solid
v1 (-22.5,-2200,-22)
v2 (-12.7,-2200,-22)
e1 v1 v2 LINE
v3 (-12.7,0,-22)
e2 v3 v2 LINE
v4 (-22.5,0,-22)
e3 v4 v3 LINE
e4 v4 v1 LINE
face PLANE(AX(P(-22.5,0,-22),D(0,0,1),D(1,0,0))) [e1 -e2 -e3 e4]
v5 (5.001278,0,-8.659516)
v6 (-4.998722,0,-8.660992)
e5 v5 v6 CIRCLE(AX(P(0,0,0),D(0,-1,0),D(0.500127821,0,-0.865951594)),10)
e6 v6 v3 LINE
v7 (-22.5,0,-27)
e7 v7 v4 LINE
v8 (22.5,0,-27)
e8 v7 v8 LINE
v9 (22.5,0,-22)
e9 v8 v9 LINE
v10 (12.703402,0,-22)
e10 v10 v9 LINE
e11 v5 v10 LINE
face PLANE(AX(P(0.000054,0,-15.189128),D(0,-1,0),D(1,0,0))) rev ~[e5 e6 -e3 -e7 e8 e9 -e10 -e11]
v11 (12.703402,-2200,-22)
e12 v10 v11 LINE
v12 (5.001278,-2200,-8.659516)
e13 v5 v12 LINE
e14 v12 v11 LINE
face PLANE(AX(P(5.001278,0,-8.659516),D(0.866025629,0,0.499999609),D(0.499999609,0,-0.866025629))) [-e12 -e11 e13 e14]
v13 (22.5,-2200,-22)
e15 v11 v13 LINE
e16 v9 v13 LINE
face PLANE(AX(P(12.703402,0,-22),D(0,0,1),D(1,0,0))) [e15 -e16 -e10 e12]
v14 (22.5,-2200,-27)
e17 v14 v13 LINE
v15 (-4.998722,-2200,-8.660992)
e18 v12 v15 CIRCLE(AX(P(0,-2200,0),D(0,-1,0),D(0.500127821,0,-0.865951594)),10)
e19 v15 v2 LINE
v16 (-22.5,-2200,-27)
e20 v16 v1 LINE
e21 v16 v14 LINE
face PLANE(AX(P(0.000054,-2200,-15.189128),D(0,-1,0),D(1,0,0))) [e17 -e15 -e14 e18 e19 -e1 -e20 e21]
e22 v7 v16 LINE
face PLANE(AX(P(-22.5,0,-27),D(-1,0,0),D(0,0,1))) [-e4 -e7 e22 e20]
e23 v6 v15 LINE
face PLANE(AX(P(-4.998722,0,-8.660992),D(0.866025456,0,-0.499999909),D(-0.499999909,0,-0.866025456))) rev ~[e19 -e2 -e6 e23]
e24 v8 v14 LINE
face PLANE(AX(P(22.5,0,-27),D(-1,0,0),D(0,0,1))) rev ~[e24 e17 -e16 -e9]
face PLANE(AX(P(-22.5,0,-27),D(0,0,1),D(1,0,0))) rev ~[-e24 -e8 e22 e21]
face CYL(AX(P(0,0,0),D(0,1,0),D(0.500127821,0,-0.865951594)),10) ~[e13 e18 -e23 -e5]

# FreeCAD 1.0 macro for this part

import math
import FreeCAD as App
import Part
import Sketcher
from FreeCAD import Vector
Q = App.Units.Quantity

doc = App.newDocument("Part")
body = doc.addObject("PartDesign::Body", "Body")

# Sketch on XZ plane
sketch1 = body.newObject("Sketcher::SketchObject", "Sketch")
sketch1.AttachmentSupport = (doc.getObject("XZ_Plane"), [""])
sketch1.MapMode = "FlatFace"
sketch1.addGeometry([
    Part.ArcOfCircle(Part.Circle(Vector(0, 0, 0), Vector(0, 0, 1), 10), math.radians(-60), math.radians(240)),  # 0
    Part.LineSegment(Vector(-5, -9, 0), Vector(-13, -22, 0)),  # 1
    Part.LineSegment(Vector(-13, -22, 0), Vector(-22, -22, 0)),  # 2
    Part.LineSegment(Vector(-22, -22, 0), Vector(-22, -27, 0)),  # 3
    Part.LineSegment(Vector(-22, -27, 0), Vector(22, -27, 0)),  # 4
    Part.LineSegment(Vector(22, -27, 0), Vector(22, -22, 0)),  # 5
    Part.LineSegment(Vector(22, -22, 0), Vector(13, -22, 0)),  # 6
    Part.LineSegment(Vector(13, -22, 0), Vector(5, -9, 0)),  # 7
], False)
sketch1.addConstraint([
    Sketcher.Constraint("Coincident", 0, 2, 1, 1),
    Sketcher.Constraint("Coincident", 1, 2, 2, 1),
    Sketcher.Constraint("Coincident", 2, 2, 3, 1),
    Sketcher.Constraint("Coincident", 3, 2, 4, 1),
    Sketcher.Constraint("Coincident", 4, 2, 5, 1),
    Sketcher.Constraint("Coincident", 5, 2, 6, 1),
    Sketcher.Constraint("Coincident", 6, 2, 7, 1),
    Sketcher.Constraint("Coincident", 7, 2, 0, 1),
    Sketcher.Constraint("Horizontal", 2),
    Sketcher.Constraint("Vertical", 3),
    Sketcher.Constraint("Horizontal", 4),
    Sketcher.Constraint("Vertical", 5),
    Sketcher.Constraint("Horizontal", 6),
    Sketcher.Constraint("Coincident", 0, 3, -1, 1),
    Sketcher.Constraint("Symmetric", 2, 2, 5, 2, -2),
    Sketcher.Constraint("Radius", 0, 10.0),
    Sketcher.Constraint("DistanceX", 4, 1, 4, 2, 45.0),
    Sketcher.Constraint("DistanceY", 3, 2, 3, 1, 5.0),
    Sketcher.Constraint("Angle", 1, Q("-119.999994 deg")),
    Sketcher.Constraint("DistanceX", 2, 2, 2, 1, 9.8),
    Sketcher.Constraint("DistanceY", 1, 2, -1, 1, 22.0),
    Sketcher.Constraint("DistanceX", 0, 2, 7, 2, 10.0),
    Sketcher.Constraint("DistanceX", 1, 2, 6, 2, 25.403402),
])
pad1 = body.newObject("PartDesign::Pad", "Pad")
pad1.Profile = sketch1
pad1.Length = 2200

doc.recompute()
